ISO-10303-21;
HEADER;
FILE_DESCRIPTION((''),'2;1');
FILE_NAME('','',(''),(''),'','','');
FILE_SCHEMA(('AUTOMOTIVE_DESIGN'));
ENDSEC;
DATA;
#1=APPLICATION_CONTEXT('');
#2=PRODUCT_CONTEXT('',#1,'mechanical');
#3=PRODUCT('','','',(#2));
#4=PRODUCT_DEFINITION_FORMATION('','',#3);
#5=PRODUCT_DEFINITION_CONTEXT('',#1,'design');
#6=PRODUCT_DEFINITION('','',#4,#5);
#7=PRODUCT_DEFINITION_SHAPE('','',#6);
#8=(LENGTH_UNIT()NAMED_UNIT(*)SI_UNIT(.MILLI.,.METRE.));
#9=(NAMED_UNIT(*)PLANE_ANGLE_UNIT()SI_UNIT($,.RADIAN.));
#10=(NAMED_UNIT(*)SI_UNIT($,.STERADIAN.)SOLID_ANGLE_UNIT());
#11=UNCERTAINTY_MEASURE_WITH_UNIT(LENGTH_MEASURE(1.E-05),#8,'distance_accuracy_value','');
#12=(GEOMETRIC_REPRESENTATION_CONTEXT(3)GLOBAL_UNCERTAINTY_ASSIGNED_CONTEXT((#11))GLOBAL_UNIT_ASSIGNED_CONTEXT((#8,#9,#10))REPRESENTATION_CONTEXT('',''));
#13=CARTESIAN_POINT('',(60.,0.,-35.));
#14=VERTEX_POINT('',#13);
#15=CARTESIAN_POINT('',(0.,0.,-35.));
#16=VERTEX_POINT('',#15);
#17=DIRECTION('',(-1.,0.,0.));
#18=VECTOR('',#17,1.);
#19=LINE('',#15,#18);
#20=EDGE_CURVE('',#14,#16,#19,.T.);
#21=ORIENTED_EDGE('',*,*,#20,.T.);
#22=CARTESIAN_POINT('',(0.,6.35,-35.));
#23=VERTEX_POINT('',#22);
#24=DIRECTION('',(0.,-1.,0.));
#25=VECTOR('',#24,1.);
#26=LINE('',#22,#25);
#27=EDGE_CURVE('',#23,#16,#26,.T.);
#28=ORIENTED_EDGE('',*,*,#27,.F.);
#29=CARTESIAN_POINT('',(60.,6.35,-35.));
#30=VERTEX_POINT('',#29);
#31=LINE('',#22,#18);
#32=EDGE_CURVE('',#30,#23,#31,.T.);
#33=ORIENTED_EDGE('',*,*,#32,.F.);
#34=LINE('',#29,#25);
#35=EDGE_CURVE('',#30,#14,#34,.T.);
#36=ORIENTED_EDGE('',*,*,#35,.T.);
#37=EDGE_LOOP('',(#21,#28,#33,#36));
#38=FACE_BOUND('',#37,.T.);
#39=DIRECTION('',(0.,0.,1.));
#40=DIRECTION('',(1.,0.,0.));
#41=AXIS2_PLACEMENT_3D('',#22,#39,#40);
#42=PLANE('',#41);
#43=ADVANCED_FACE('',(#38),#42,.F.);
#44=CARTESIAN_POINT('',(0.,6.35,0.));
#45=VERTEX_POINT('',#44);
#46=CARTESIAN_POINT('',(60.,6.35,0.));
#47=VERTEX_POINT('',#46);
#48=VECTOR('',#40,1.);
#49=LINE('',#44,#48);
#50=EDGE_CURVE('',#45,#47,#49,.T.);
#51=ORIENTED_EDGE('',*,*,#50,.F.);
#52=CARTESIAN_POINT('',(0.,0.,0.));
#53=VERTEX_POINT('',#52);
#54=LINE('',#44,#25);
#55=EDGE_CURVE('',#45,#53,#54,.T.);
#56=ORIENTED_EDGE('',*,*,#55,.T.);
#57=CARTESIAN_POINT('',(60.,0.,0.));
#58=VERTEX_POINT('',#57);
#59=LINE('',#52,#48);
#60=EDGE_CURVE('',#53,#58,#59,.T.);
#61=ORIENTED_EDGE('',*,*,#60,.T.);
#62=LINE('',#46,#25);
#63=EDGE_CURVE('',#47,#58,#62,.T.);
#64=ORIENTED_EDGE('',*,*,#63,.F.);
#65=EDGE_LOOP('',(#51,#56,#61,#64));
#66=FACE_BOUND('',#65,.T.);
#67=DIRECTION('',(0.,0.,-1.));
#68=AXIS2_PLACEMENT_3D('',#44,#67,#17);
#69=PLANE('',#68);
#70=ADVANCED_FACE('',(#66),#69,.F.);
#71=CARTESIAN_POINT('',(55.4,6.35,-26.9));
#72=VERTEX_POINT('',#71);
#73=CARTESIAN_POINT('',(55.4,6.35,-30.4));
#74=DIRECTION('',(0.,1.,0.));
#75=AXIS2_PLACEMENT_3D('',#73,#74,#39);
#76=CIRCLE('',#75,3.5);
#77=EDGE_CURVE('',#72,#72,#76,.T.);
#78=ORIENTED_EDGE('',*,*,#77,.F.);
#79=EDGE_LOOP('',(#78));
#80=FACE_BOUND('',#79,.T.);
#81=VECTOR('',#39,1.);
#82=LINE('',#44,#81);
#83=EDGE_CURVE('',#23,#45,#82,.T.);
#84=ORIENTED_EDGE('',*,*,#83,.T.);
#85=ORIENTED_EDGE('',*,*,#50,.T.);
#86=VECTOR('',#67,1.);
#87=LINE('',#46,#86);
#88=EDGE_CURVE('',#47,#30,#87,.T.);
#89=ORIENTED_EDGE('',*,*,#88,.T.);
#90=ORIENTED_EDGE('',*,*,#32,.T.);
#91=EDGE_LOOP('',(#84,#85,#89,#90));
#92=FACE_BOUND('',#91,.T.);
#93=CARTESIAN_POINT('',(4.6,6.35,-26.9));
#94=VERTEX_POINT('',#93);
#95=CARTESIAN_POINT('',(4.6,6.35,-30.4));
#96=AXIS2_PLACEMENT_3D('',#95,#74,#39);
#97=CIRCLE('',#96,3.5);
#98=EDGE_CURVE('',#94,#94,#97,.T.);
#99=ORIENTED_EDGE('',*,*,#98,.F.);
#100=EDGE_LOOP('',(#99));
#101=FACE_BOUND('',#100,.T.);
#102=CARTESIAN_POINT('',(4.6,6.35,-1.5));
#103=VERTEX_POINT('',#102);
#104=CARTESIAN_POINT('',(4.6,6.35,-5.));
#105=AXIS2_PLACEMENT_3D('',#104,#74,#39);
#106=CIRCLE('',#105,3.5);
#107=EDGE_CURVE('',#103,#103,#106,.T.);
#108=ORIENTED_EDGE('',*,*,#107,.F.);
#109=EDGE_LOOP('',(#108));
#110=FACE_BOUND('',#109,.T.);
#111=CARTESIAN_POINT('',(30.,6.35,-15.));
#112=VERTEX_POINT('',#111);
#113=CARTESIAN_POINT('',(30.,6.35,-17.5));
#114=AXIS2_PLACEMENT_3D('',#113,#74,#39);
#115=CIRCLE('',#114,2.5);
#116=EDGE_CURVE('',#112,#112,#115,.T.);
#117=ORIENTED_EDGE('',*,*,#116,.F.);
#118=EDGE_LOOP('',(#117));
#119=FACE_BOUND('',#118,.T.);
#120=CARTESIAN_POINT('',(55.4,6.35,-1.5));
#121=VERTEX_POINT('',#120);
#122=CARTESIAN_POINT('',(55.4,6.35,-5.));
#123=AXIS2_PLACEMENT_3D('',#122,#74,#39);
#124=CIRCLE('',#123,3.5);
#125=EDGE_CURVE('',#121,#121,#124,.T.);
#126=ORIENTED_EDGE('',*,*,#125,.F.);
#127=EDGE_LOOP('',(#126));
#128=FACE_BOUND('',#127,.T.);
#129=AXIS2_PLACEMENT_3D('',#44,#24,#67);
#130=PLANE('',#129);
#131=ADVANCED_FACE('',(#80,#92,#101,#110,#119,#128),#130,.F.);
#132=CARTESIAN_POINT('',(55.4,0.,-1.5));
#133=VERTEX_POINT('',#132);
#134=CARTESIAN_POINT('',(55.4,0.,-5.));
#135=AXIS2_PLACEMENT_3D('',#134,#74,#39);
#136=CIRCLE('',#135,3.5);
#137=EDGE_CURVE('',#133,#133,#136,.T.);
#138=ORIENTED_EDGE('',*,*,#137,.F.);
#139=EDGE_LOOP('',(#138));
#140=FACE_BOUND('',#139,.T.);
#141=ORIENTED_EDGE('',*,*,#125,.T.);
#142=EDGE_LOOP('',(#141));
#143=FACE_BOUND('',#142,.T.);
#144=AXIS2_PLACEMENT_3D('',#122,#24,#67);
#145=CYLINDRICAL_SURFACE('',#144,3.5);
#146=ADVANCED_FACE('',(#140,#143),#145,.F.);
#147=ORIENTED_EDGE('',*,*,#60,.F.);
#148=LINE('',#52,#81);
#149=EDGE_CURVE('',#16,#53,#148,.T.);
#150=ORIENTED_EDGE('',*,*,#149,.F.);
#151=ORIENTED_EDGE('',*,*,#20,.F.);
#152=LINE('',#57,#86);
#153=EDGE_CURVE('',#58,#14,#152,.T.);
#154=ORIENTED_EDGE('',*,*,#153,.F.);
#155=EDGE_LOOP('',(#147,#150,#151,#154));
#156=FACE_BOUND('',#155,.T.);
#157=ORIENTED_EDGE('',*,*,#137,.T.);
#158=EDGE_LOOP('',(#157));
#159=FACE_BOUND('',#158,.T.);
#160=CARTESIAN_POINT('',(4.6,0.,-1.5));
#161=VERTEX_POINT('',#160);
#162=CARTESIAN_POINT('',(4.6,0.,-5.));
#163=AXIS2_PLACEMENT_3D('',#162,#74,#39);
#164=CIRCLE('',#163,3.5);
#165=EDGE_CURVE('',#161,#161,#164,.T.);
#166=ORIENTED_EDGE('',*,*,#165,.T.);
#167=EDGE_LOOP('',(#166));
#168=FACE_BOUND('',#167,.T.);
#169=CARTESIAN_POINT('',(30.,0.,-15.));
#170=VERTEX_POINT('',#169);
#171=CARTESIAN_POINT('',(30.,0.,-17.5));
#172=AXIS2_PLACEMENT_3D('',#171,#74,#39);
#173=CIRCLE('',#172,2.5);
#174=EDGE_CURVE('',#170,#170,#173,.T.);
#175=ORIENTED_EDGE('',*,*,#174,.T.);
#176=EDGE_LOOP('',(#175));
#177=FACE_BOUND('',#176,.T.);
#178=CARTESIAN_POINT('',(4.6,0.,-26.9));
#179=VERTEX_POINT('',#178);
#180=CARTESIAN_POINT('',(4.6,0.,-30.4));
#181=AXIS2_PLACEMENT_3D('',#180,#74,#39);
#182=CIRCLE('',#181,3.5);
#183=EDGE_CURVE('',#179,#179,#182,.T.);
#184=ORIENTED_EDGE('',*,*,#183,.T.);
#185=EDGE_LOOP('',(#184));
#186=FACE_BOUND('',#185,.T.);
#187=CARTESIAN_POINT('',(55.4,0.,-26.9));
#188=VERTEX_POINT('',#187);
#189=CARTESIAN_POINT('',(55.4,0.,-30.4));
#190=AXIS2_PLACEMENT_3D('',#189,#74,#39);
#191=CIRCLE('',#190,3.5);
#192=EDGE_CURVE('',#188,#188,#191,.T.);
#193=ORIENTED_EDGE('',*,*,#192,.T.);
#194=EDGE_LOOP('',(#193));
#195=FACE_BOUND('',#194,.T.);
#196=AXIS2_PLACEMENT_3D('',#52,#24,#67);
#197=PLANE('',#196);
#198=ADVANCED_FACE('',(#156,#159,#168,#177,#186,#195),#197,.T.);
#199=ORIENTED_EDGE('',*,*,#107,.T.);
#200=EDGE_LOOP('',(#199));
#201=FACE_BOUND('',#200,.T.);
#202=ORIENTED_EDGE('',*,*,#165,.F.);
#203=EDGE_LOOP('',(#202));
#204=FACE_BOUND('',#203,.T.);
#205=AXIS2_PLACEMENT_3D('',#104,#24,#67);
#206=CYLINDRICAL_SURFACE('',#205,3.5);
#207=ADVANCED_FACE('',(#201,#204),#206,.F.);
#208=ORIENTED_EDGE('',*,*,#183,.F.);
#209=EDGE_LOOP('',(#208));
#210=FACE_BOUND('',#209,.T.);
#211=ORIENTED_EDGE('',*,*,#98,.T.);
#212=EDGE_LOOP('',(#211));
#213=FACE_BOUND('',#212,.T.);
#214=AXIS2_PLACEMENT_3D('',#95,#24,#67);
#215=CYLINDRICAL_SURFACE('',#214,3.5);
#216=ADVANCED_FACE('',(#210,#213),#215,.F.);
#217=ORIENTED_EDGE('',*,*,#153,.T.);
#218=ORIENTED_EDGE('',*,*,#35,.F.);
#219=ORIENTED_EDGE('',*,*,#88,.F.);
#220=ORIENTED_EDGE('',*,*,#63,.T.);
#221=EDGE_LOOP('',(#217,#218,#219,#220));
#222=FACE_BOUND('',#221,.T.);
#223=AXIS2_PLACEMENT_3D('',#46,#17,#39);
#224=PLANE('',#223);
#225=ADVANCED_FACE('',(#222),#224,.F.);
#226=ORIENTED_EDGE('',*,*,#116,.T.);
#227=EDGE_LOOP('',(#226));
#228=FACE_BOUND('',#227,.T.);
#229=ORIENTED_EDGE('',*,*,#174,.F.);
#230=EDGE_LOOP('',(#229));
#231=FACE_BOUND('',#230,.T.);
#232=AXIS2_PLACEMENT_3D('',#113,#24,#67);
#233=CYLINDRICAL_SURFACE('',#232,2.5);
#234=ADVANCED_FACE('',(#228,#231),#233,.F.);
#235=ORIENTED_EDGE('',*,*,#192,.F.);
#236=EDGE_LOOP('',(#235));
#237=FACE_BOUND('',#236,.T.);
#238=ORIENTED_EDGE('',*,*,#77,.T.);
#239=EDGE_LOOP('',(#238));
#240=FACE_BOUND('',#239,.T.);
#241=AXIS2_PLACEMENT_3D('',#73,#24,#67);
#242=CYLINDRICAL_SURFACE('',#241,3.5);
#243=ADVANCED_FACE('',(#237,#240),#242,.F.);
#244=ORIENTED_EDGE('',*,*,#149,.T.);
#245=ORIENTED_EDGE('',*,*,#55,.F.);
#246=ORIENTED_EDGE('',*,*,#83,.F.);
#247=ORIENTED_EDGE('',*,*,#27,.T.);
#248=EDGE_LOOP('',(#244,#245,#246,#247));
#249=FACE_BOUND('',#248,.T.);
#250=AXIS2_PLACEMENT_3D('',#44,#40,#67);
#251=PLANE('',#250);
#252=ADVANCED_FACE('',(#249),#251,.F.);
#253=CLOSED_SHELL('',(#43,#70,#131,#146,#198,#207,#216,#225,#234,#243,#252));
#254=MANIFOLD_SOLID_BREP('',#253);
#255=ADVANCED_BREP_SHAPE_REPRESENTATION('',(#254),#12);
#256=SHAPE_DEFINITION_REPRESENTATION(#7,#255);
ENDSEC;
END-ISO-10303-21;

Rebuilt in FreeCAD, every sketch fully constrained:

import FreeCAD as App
import Part
import Sketcher
from FreeCAD import Vector
Q = App.Units.Quantity


def add_polygon(sketch, points):
    """Adds a closed chain of lines whose ends are joined by coincident constraints."""
    first, n = sketch.GeometryCount, len(points)
    for a, b in zip(points, points[1:] + points[:1]):
        sketch.addGeometry(Part.LineSegment(App.Vector(*a, 0), App.Vector(*b, 0)), False)
    for i in range(n):
        sketch.addConstraint(Sketcher.Constraint("Coincident", first + i, 2, first + (i + 1) % n, 1))

doc = App.newDocument("Part")
body = doc.addObject("PartDesign::Body", "Body")

# Sketch on XZ plane
sketch1 = body.newObject("Sketcher::SketchObject", "Sketch")
sketch1.AttachmentSupport = (doc.getObject("XZ_Plane"), [""])
sketch1.MapMode = "FlatFace"
add_polygon(sketch1, [(0, -35), (0, 0), (60, 0), (60, -35)])  # lines 0-3
sketch1.addGeometry(Part.Circle(Vector(4.6, -5, 0), Vector(0, 0, 1), 3.5), False)  # 4
sketch1.addGeometry(Part.Circle(Vector(55.4, -5, 0), Vector(0, 0, 1), 3.5), False)  # 5
sketch1.addGeometry(Part.Circle(Vector(30, -17.5, 0), Vector(0, 0, 1), 2.5), False)  # 6
sketch1.addGeometry(Part.Circle(Vector(4.6, -30.4, 0), Vector(0, 0, 1), 3.5), False)  # 7
sketch1.addGeometry(Part.Circle(Vector(55.4, -30.4, 0), Vector(0, 0, 1), 3.5), False)  # 8
sketch1.addConstraint(Sketcher.Constraint("Vertical", 0))
sketch1.addConstraint(Sketcher.Constraint("Horizontal", 1))
sketch1.addConstraint(Sketcher.Constraint("Vertical", 2))
sketch1.addConstraint(Sketcher.Constraint("Horizontal", 3))
sketch1.addConstraint(Sketcher.Constraint("Coincident", 0, 2, -1, 1))
sketch1.addConstraint(Sketcher.Constraint("Equal", 4, 5))
sketch1.addConstraint(Sketcher.Constraint("Equal", 5, 7))
sketch1.addConstraint(Sketcher.Constraint("Equal", 7, 8))
sketch1.addConstraint(Sketcher.Constraint("Horizontal", 4, 3, 5, 3))
sketch1.addConstraint(Sketcher.Constraint("Horizontal", 7, 3, 8, 3))
sketch1.addConstraint(Sketcher.Constraint("Vertical", 4, 3, 7, 3))
sketch1.addConstraint(Sketcher.Constraint("Vertical", 5, 3, 8, 3))
sketch1.addConstraint(Sketcher.Constraint("Diameter", 4, Q("7 mm")))
sketch1.addConstraint(Sketcher.Constraint("Diameter", 6, Q("5 mm")))
sketch1.addConstraint(Sketcher.Constraint("DistanceX", 1, 1, 1, 2, Q("60 mm")))
sketch1.addConstraint(Sketcher.Constraint("DistanceY", 0, 1, 0, 2, Q("35 mm")))
sketch1.addConstraint(Sketcher.Constraint("DistanceY", 4, 3, -1, 1, Q("5 mm")))
sketch1.addConstraint(Sketcher.Constraint("DistanceX", -1, 1, 6, 3, Q("30 mm")))
sketch1.addConstraint(Sketcher.Constraint("DistanceX", -1, 1, 4, 3, Q("4.6 mm")))
sketch1.addConstraint(Sketcher.Constraint("DistanceX", -1, 1, 5, 3, Q("55.4 mm")))
sketch1.addConstraint(Sketcher.Constraint("DistanceY", 6, 3, -1, 1, Q("17.5 mm")))
sketch1.addConstraint(Sketcher.Constraint("DistanceY", 7, 3, -1, 1, Q("30.4 mm")))
pad1 = body.newObject("PartDesign::Pad", "Pad")
pad1.Profile = sketch1
pad1.Length = 6.35
pad1.Reversed = True

doc.recompute()
